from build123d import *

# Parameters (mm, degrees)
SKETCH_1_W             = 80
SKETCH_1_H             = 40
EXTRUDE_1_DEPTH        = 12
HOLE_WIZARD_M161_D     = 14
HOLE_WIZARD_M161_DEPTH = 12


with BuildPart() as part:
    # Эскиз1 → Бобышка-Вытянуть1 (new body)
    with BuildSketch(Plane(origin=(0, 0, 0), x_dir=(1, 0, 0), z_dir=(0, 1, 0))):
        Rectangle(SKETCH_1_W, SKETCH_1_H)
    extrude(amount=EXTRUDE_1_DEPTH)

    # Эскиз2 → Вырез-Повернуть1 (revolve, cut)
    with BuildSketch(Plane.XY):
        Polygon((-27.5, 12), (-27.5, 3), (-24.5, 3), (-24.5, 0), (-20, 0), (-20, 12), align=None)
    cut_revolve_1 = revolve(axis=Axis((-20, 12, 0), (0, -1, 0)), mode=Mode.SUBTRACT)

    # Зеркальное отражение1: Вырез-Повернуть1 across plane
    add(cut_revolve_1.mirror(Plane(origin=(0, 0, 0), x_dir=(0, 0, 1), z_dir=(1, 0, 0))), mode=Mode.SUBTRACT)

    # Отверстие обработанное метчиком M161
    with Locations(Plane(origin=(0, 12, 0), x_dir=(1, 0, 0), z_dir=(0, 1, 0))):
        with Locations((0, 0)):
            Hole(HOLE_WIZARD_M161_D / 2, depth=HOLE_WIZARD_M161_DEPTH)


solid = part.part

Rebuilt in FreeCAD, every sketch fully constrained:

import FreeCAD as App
import Part
import Sketcher
Q = App.Units.Quantity


def add_polygon(sketch, points):
    """Adds a closed chain of lines whose ends are joined by coincident constraints."""
    first, n = sketch.GeometryCount, len(points)
    for a, b in zip(points, points[1:] + points[:1]):
        sketch.addGeometry(Part.LineSegment(App.Vector(*a, 0), App.Vector(*b, 0)), False)
    for i in range(n):
        sketch.addConstraint(Sketcher.Constraint("Coincident", first + i, 2, first + (i + 1) % n, 1))

doc = App.newDocument("Part")
body = doc.addObject("PartDesign::Body", "Body")

# Sketch on XZ plane
sketch1 = body.newObject("Sketcher::SketchObject", "Sketch")
sketch1.AttachmentSupport = (doc.getObject("XZ_Plane"), [""])
sketch1.MapMode = "FlatFace"
add_polygon(sketch1, [(-40, -20), (-40, 20), (40, 20), (40, -20)])  # lines 0-3
sketch1.addConstraint([
    Sketcher.Constraint("Vertical", 0),
    Sketcher.Constraint("Horizontal", 1),
    Sketcher.Constraint("Vertical", 2),
    Sketcher.Constraint("Horizontal", 3),
    Sketcher.Constraint("Symmetric", 0, 2, 2, 2, -1, 1),
    Sketcher.Constraint("DistanceX", 1, 1, 1, 2, Q("80 mm")),
    Sketcher.Constraint("DistanceY", 0, 1, 0, 2, Q("40 mm")),
])
pad1 = body.newObject("PartDesign::Pad", "Pad")
pad1.Profile = sketch1
pad1.Length = 12
pad1.Reversed = True

# Sketch on XY plane
sketch2 = body.newObject("Sketcher::SketchObject", "Sketch001")
sketch2.AttachmentSupport = (doc.getObject("XY_Plane"), [""])
sketch2.MapMode = "FlatFace"
add_polygon(sketch2, [(-27.5, 12), (-27.5, 3), (-24.5, 3), (-24.5, 0), (-20, 0), (-20, 12)])  # lines 0-5
sketch2.addGeometry(Part.LineSegment(App.Vector(-20, 12, 0), App.Vector(-20, 0, 0)), True)  # axis
sketch2.addConstraint([
    Sketcher.Constraint("Vertical", 0),
    Sketcher.Constraint("Horizontal", 1),
    Sketcher.Constraint("Vertical", 2),
    Sketcher.Constraint("Horizontal", 3),
    Sketcher.Constraint("Vertical", 4),
    Sketcher.Constraint("Horizontal", 5),
    Sketcher.Constraint("Vertical", 6),
    Sketcher.Constraint("Coincident", 6, 1, 4, 2),
    Sketcher.Constraint("PointOnObject", 2, 2, -1),
    Sketcher.Constraint("PointOnObject", 6, 2, -1),
    Sketcher.Constraint("Equal", 1, 2),
    Sketcher.Constraint("DistanceX", 1, 1, 1, 2, Q("3 mm")),
    Sketcher.Constraint("DistanceY", 0, 2, 0, 1, Q("9 mm")),
    Sketcher.Constraint("DistanceX", 3, 1, 3, 2, Q("4.5 mm")),
    Sketcher.Constraint("DistanceX", 3, 2, -1, 1, Q("20 mm")),
])
groove = body.newObject("PartDesign::Groove", "Groove")
groove.Profile = sketch2
groove.ReferenceAxis = (sketch2, ["Axis0"])
groove.Angle = 360
doc.recompute()

mirrored = body.newObject("PartDesign::Mirrored", "Mirrored")
mirrored.Originals = [groove]
mirrored.MirrorPlane = (doc.getObject("YZ_Plane"), [""])
body.Tip = mirrored

# Sketch on XZ plane
sketch3 = body.newObject("Sketcher::SketchObject", "Sketch002")
sketch3.AttachmentSupport = (doc.getObject("XZ_Plane"), [""])
sketch3.MapMode = "FlatFace"
sketch3.AttachmentOffset = App.Placement(App.Vector(0, 0, -12), App.Rotation())
sketch3.addGeometry(Part.Circle(App.Vector(0, 0, 0), App.Vector(0, 0, 1), 7), False)
sketch3.addConstraint([
    Sketcher.Constraint("Coincident", 0, 3, -1, 1),
    Sketcher.Constraint("Diameter", 0, Q("14 mm")),
])
doc.recompute()
hole = body.newObject("PartDesign::Hole", "Hole")
hole.Profile = sketch3
hole.ThreadType = "None"
hole.Diameter = 14
hole.DepthType = "Dimension"
hole.Depth = 12
hole.DrillPoint = "Flat"
hole.Reversed = True

doc.recompute()
